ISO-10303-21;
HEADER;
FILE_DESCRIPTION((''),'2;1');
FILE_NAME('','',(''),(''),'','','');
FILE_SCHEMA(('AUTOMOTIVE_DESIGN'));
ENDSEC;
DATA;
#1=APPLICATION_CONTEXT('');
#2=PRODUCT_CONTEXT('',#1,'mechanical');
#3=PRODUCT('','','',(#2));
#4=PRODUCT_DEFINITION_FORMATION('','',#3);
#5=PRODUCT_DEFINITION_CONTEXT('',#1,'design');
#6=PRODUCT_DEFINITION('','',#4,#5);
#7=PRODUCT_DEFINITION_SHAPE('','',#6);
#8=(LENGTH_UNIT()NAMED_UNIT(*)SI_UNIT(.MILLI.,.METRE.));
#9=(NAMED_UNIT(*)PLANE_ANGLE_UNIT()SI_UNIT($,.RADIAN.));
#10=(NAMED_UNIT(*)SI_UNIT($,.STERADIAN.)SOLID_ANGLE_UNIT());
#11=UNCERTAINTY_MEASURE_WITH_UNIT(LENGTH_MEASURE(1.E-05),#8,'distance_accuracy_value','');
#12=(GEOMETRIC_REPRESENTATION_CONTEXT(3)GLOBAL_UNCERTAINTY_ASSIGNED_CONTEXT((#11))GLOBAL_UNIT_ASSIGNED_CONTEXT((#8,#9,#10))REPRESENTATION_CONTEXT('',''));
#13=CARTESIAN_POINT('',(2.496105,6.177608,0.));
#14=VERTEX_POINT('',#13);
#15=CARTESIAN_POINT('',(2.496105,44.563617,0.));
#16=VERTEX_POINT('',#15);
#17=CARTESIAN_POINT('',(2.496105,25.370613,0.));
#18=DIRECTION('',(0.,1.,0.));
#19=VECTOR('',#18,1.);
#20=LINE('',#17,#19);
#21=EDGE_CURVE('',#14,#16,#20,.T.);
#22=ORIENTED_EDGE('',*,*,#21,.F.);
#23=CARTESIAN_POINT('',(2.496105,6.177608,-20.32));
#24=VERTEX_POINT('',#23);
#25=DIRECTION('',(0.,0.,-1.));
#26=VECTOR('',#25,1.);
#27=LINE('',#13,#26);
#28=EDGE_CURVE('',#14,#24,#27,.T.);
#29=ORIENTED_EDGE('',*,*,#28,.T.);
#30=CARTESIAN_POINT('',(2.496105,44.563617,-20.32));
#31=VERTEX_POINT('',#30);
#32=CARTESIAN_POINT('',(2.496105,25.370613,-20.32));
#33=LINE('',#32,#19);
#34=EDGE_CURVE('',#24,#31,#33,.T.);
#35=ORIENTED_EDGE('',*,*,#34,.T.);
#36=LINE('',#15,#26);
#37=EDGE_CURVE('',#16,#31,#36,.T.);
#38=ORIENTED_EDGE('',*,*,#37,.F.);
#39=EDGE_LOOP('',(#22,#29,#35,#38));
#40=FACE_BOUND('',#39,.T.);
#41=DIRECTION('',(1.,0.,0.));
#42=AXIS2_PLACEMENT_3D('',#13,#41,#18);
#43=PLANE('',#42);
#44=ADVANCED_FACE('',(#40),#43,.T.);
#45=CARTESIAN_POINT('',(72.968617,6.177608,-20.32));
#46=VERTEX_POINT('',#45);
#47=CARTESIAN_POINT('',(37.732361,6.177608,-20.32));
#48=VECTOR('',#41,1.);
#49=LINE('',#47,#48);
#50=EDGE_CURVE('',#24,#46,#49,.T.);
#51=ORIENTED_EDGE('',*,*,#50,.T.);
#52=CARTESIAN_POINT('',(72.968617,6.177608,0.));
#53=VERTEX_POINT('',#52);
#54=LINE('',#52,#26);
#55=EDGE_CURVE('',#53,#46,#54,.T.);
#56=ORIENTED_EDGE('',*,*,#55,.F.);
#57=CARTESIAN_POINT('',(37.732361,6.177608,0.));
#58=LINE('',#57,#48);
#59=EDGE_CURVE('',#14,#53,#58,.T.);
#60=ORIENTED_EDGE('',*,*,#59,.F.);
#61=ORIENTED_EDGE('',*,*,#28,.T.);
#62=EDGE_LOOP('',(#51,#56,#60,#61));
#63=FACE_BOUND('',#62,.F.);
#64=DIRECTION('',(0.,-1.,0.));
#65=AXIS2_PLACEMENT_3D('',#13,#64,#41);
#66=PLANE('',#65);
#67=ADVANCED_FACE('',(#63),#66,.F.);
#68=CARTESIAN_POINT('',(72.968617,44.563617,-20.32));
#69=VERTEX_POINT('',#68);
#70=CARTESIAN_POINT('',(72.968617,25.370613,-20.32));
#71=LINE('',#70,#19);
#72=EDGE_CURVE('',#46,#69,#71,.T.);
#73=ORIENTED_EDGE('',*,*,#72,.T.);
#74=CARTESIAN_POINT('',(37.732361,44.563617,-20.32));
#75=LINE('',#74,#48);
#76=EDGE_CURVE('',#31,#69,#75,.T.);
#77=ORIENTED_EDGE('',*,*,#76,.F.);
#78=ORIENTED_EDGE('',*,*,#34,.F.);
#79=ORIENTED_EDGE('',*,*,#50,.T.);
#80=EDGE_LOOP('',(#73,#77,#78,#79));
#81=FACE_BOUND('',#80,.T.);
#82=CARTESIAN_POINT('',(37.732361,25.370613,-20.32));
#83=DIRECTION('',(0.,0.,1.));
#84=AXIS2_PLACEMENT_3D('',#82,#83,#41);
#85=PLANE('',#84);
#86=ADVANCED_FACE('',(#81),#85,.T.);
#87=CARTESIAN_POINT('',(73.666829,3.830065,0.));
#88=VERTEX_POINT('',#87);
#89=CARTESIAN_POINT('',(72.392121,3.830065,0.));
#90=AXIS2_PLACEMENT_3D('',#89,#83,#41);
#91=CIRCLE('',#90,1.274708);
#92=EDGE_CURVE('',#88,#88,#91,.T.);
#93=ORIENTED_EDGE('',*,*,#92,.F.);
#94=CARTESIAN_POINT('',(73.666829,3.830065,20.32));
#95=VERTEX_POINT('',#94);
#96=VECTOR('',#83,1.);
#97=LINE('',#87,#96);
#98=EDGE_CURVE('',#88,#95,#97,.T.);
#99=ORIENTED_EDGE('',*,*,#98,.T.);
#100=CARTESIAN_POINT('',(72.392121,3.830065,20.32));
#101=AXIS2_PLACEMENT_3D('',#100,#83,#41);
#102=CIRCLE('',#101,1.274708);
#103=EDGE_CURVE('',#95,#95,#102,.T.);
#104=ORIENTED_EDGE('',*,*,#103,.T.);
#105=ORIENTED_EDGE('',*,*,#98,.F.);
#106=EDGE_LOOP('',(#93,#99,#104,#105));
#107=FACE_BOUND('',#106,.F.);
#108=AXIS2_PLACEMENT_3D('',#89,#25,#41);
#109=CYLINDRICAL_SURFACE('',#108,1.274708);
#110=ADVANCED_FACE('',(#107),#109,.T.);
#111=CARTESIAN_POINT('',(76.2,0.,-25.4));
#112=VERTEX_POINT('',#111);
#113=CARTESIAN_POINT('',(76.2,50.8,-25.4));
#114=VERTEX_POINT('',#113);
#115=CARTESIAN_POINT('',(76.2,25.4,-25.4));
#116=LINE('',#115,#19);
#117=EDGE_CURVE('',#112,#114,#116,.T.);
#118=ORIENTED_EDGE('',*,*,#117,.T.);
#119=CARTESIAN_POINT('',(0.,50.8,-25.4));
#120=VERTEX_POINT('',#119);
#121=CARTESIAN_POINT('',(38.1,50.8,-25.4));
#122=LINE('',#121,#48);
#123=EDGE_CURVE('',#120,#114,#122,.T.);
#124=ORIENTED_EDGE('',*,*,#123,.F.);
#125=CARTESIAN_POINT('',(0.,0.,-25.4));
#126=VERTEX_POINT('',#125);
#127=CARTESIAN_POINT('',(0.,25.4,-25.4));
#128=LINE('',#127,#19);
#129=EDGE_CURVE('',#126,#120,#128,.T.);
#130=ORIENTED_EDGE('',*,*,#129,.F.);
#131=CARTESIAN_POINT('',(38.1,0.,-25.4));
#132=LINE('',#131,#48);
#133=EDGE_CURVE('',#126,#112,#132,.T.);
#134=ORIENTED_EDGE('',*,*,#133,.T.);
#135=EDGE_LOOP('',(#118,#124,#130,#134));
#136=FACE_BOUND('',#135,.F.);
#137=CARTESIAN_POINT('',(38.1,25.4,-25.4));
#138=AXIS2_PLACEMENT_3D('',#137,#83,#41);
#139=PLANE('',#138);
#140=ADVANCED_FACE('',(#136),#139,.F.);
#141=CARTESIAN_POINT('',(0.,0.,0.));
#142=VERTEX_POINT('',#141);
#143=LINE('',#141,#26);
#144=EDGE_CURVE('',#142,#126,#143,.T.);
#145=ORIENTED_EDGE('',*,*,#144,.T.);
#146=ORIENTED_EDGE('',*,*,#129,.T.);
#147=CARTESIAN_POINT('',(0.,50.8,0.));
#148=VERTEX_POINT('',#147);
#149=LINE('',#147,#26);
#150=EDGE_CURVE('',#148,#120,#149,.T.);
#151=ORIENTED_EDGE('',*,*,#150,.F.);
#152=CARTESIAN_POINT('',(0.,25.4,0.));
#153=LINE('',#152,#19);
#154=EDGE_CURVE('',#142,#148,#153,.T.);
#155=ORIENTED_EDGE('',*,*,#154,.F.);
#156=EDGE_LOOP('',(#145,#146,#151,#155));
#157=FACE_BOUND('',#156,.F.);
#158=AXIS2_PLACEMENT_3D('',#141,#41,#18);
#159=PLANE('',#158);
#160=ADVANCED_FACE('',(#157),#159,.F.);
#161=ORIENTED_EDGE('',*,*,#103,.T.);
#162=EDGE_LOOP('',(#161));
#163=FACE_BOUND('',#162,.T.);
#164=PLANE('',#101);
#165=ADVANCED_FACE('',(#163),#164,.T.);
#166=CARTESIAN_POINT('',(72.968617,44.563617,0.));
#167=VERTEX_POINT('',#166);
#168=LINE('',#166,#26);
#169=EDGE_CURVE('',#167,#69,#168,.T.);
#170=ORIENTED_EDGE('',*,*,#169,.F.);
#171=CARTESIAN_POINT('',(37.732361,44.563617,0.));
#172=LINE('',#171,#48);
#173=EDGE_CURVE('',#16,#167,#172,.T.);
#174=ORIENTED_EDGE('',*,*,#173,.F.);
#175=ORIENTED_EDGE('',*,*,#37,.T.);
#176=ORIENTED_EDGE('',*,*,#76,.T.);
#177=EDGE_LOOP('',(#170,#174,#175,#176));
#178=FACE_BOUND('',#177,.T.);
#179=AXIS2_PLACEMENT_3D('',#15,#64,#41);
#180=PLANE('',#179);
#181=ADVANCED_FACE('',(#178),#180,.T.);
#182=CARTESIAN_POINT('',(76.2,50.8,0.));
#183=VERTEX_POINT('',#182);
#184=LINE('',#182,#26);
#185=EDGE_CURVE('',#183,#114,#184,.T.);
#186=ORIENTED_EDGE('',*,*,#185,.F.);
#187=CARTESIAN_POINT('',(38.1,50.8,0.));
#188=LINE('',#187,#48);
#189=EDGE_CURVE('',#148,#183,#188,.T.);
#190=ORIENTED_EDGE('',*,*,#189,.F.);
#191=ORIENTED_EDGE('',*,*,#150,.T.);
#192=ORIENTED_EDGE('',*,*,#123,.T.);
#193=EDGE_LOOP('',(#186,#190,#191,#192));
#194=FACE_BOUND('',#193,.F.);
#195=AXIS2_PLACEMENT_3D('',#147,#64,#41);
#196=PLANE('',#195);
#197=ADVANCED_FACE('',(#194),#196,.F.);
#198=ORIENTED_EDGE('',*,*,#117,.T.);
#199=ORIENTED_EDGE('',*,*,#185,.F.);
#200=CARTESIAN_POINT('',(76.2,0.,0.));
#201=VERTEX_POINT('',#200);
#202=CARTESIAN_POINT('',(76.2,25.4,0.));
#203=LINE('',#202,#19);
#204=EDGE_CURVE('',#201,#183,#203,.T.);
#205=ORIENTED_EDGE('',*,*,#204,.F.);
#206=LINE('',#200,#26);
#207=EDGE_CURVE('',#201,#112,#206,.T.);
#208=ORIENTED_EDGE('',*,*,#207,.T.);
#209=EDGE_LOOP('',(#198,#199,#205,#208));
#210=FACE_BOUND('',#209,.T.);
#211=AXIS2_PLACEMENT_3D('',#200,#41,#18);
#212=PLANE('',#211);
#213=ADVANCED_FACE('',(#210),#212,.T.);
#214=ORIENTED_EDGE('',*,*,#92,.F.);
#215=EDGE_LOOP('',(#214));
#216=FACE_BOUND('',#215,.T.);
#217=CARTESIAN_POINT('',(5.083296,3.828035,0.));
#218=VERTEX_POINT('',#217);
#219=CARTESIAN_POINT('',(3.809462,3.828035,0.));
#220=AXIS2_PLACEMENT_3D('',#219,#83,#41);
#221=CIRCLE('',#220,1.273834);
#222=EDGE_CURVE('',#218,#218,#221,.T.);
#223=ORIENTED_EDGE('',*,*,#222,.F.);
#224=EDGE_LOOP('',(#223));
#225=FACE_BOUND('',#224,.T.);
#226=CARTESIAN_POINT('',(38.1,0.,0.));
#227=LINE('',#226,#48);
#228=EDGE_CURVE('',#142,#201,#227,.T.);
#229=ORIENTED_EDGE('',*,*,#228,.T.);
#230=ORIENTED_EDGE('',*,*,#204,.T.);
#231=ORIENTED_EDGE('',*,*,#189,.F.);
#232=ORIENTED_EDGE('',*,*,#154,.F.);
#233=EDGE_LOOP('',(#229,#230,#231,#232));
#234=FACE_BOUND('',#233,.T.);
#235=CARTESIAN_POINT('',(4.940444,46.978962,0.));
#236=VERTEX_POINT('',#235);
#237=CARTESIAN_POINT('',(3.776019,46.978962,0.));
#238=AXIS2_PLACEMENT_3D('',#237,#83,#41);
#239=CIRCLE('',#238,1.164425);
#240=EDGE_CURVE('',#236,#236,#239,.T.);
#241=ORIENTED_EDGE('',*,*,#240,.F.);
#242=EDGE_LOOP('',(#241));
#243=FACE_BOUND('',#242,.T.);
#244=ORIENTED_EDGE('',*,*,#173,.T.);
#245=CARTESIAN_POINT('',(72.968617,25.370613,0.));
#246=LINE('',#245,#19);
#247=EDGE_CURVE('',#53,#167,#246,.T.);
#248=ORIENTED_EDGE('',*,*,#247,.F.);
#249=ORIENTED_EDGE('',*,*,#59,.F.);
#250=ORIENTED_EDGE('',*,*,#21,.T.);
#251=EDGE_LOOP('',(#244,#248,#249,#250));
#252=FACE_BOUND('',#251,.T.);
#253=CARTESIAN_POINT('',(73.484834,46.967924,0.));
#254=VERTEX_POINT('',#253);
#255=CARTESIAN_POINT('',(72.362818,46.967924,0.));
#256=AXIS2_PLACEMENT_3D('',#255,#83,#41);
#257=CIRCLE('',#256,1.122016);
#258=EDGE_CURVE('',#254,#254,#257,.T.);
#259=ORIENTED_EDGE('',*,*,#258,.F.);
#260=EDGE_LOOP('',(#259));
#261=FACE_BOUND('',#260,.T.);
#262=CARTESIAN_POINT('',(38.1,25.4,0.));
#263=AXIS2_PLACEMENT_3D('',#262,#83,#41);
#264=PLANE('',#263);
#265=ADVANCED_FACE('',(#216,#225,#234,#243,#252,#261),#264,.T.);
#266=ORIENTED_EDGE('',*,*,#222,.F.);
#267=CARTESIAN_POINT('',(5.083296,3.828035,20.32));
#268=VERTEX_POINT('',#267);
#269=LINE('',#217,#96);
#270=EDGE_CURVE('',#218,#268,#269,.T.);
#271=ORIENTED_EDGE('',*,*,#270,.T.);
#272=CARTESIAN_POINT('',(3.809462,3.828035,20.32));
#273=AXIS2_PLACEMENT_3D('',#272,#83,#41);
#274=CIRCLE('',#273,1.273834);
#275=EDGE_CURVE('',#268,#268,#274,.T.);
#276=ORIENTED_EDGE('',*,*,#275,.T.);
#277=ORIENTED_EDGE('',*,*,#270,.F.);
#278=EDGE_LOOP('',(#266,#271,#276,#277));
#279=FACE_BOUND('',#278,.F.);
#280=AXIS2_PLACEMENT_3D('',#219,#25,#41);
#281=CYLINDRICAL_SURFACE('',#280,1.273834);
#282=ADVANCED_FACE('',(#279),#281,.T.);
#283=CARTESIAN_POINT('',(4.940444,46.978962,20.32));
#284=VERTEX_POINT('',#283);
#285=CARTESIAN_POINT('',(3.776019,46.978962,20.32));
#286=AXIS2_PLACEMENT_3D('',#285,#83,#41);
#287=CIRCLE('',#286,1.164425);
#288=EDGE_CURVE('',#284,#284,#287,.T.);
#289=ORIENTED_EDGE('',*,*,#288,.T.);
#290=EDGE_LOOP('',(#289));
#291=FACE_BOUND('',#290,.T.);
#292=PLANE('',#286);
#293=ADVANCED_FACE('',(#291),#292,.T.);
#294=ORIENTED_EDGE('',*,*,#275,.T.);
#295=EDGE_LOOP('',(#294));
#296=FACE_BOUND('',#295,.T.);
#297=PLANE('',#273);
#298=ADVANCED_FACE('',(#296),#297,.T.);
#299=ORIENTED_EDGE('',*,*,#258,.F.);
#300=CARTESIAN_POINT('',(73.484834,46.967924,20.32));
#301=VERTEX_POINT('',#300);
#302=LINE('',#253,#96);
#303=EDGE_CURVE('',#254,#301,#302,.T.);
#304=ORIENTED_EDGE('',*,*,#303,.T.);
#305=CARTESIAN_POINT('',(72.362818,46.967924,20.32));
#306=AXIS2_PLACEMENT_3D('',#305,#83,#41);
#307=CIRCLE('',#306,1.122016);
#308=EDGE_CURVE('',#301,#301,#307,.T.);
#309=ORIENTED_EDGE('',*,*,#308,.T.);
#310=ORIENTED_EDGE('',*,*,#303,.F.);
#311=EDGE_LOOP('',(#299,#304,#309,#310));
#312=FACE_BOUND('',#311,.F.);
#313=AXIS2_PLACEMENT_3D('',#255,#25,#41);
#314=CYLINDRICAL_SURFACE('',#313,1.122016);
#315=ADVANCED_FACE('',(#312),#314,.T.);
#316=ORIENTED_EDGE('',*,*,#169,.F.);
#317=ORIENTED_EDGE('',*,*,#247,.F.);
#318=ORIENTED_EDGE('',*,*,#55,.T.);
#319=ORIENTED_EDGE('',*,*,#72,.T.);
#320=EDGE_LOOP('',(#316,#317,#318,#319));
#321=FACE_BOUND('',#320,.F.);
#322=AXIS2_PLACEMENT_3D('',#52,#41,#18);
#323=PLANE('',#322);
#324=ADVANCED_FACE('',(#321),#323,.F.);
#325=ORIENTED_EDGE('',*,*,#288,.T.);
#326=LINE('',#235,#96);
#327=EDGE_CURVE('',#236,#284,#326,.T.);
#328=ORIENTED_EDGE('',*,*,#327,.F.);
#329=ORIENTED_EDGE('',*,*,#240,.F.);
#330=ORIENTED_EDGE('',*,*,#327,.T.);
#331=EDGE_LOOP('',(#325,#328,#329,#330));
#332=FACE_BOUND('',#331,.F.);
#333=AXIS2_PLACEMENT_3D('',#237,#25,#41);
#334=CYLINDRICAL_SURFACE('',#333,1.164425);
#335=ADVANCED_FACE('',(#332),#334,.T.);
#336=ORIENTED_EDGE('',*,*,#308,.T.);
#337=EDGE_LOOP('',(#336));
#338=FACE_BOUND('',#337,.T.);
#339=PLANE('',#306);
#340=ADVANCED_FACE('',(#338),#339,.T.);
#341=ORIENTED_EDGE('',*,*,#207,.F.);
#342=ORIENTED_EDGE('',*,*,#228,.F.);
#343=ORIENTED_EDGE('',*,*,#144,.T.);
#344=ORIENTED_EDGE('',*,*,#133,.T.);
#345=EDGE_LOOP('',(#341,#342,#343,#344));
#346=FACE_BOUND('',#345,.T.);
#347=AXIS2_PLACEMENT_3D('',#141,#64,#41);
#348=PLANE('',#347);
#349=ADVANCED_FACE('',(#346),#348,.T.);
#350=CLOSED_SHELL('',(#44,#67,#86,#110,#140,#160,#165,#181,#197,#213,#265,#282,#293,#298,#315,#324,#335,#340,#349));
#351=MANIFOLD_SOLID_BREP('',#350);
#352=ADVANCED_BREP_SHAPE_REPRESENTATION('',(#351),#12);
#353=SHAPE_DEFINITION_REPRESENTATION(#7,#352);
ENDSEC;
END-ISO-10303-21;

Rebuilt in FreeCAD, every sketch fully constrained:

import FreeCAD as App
import Part
import Sketcher
from FreeCAD import Vector
Q = App.Units.Quantity

doc = App.newDocument("Part")
params = doc.addObject("Spreadsheet::Sheet", "Params")
for row, (alias, value) in enumerate([
    ("sketch1_width", "3 in"),
    ("sketch1_height", "2 in"),
    ("pad1_length", "1 in"),
    ("pocket1_length", "0.8 in"),
    ("pad2_length", "0.8 in"),
], start=1):
    params.set(f"A{row}", alias)
    params.set(f"B{row}", "=" + value)
    params.setAlias(f"B{row}", alias)

body = doc.addObject("PartDesign::Body", "Body")

# Sketch on XY plane
sketch1 = body.newObject("Sketcher::SketchObject", "Sketch")
sketch1.AttachmentSupport = (doc.getObject("XY_Plane"), [""])
sketch1.MapMode = "FlatFace"
sketch1.addGeometry(Part.LineSegment(Vector(0, 51, 0), Vector(0, 0, 0)), False)
sketch1.addGeometry(Part.LineSegment(Vector(0, 0, 0), Vector(76, 0, 0)), False)
sketch1.addGeometry(Part.LineSegment(Vector(76, 0, 0), Vector(76, 51, 0)), False)
sketch1.addGeometry(Part.LineSegment(Vector(76, 51, 0), Vector(0, 51, 0)), False)
sketch1.addConstraint(Sketcher.Constraint("Coincident", 0, 2, 1, 1))
sketch1.addConstraint(Sketcher.Constraint("Coincident", 1, 2, 2, 1))
sketch1.addConstraint(Sketcher.Constraint("Coincident", 2, 2, 3, 1))
sketch1.addConstraint(Sketcher.Constraint("Coincident", 3, 2, 0, 1))
sketch1.addConstraint(Sketcher.Constraint("Vertical", 0))
sketch1.addConstraint(Sketcher.Constraint("Horizontal", 1))
sketch1.addConstraint(Sketcher.Constraint("Vertical", 2))
sketch1.addConstraint(Sketcher.Constraint("Horizontal", 3))
sketch1.addConstraint(Sketcher.Constraint("Coincident", 0, 2, -1, 1))
sketch1.addConstraint(Sketcher.Constraint("DistanceX", 1, 1, 1, 2, Q("3 in")))
sketch1.addConstraint(Sketcher.Constraint("DistanceY", 0, 2, 0, 1, Q("2 in")))
sketch1.setExpression("Constraints[9]", "Params.sketch1_width")
sketch1.setExpression("Constraints[10]", "Params.sketch1_height")
pad1 = body.newObject("PartDesign::Pad", "Pad")
pad1.Profile = sketch1
pad1.setExpression("Length", "Params.pad1_length")
pad1.Reversed = True

# Sketch on XY plane
sketch2 = body.newObject("Sketcher::SketchObject", "Sketch001")
sketch2.AttachmentSupport = (doc.getObject("XY_Plane"), [""])
sketch2.MapMode = "FlatFace"
sketch2.addGeometry(Part.LineSegment(Vector(2, 45, 0), Vector(2, 6, 0)), False)
sketch2.addGeometry(Part.LineSegment(Vector(2, 6, 0), Vector(73, 6, 0)), False)
sketch2.addGeometry(Part.LineSegment(Vector(73, 6, 0), Vector(73, 45, 0)), False)
sketch2.addGeometry(Part.LineSegment(Vector(73, 45, 0), Vector(2, 45, 0)), False)
sketch2.addConstraint(Sketcher.Constraint("Coincident", 0, 2, 1, 1))
sketch2.addConstraint(Sketcher.Constraint("Coincident", 1, 2, 2, 1))
sketch2.addConstraint(Sketcher.Constraint("Coincident", 2, 2, 3, 1))
sketch2.addConstraint(Sketcher.Constraint("Coincident", 3, 2, 0, 1))
sketch2.addConstraint(Sketcher.Constraint("Vertical", 0))
sketch2.addConstraint(Sketcher.Constraint("Horizontal", 1))
sketch2.addConstraint(Sketcher.Constraint("Vertical", 2))
sketch2.addConstraint(Sketcher.Constraint("Horizontal", 3))
sketch2.addConstraint(Sketcher.Constraint("DistanceX", 1, 1, 1, 2, 70.472512))
sketch2.addConstraint(Sketcher.Constraint("DistanceY", 0, 2, 0, 1, 38.386009))
sketch2.addConstraint(Sketcher.Constraint("DistanceY", -1, 1, 0, 2, 6.177608))
sketch2.addConstraint(Sketcher.Constraint("DistanceX", -1, 1, 0, 2, 2.496105))
pocket1 = body.newObject("PartDesign::Pocket", "Pocket")
pocket1.Profile = sketch2
pocket1.setExpression("Length", "Params.pocket1_length")

# Sketch on XY plane
sketch3 = body.newObject("Sketcher::SketchObject", "Sketch002")
sketch3.AttachmentSupport = (doc.getObject("XY_Plane"), [""])
sketch3.MapMode = "FlatFace"
sketch3.addGeometry(Part.Circle(Vector(3.8, 47, 0), Vector(0, 0, 1), 1.2), False)
sketch3.addGeometry(Part.Circle(Vector(72.4, 47, 0), Vector(0, 0, 1), 1.1), False)
sketch3.addGeometry(Part.Circle(Vector(72.4, 3.8, 0), Vector(0, 0, 1), 1.3), False)
sketch3.addGeometry(Part.Circle(Vector(3.8, 3.8, 0), Vector(0, 0, 1), 1.3), False)
sketch3.addConstraint(Sketcher.Constraint("Diameter", 0, 2.32885))
sketch3.addConstraint(Sketcher.Constraint("Diameter", 1, 2.244032))
sketch3.addConstraint(Sketcher.Constraint("Diameter", 2, 2.549416))
sketch3.addConstraint(Sketcher.Constraint("Diameter", 3, 2.547668))
sketch3.addConstraint(Sketcher.Constraint("DistanceX", 0, 3, 1, 3, 68.586799))
sketch3.addConstraint(Sketcher.Constraint("DistanceX", 0, 3, 2, 3, 68.616102))
sketch3.addConstraint(Sketcher.Constraint("DistanceX", -1, 1, 0, 3, 3.776019))
sketch3.addConstraint(Sketcher.Constraint("DistanceX", -1, 1, 3, 3, 3.809462))
sketch3.addConstraint(Sketcher.Constraint("DistanceY", 1, 3, 0, 3, 0.011038))
sketch3.addConstraint(Sketcher.Constraint("DistanceY", 2, 3, 1, 3, 43.137859))
sketch3.addConstraint(Sketcher.Constraint("DistanceY", 3, 3, 2, 3, 0.00203))
sketch3.addConstraint(Sketcher.Constraint("DistanceY", -1, 1, 0, 3, 46.978962))
pad2 = body.newObject("PartDesign::Pad", "Pad001")
pad2.Profile = sketch3
pad2.setExpression("Length", "Params.pad2_length")

doc.recompute()
